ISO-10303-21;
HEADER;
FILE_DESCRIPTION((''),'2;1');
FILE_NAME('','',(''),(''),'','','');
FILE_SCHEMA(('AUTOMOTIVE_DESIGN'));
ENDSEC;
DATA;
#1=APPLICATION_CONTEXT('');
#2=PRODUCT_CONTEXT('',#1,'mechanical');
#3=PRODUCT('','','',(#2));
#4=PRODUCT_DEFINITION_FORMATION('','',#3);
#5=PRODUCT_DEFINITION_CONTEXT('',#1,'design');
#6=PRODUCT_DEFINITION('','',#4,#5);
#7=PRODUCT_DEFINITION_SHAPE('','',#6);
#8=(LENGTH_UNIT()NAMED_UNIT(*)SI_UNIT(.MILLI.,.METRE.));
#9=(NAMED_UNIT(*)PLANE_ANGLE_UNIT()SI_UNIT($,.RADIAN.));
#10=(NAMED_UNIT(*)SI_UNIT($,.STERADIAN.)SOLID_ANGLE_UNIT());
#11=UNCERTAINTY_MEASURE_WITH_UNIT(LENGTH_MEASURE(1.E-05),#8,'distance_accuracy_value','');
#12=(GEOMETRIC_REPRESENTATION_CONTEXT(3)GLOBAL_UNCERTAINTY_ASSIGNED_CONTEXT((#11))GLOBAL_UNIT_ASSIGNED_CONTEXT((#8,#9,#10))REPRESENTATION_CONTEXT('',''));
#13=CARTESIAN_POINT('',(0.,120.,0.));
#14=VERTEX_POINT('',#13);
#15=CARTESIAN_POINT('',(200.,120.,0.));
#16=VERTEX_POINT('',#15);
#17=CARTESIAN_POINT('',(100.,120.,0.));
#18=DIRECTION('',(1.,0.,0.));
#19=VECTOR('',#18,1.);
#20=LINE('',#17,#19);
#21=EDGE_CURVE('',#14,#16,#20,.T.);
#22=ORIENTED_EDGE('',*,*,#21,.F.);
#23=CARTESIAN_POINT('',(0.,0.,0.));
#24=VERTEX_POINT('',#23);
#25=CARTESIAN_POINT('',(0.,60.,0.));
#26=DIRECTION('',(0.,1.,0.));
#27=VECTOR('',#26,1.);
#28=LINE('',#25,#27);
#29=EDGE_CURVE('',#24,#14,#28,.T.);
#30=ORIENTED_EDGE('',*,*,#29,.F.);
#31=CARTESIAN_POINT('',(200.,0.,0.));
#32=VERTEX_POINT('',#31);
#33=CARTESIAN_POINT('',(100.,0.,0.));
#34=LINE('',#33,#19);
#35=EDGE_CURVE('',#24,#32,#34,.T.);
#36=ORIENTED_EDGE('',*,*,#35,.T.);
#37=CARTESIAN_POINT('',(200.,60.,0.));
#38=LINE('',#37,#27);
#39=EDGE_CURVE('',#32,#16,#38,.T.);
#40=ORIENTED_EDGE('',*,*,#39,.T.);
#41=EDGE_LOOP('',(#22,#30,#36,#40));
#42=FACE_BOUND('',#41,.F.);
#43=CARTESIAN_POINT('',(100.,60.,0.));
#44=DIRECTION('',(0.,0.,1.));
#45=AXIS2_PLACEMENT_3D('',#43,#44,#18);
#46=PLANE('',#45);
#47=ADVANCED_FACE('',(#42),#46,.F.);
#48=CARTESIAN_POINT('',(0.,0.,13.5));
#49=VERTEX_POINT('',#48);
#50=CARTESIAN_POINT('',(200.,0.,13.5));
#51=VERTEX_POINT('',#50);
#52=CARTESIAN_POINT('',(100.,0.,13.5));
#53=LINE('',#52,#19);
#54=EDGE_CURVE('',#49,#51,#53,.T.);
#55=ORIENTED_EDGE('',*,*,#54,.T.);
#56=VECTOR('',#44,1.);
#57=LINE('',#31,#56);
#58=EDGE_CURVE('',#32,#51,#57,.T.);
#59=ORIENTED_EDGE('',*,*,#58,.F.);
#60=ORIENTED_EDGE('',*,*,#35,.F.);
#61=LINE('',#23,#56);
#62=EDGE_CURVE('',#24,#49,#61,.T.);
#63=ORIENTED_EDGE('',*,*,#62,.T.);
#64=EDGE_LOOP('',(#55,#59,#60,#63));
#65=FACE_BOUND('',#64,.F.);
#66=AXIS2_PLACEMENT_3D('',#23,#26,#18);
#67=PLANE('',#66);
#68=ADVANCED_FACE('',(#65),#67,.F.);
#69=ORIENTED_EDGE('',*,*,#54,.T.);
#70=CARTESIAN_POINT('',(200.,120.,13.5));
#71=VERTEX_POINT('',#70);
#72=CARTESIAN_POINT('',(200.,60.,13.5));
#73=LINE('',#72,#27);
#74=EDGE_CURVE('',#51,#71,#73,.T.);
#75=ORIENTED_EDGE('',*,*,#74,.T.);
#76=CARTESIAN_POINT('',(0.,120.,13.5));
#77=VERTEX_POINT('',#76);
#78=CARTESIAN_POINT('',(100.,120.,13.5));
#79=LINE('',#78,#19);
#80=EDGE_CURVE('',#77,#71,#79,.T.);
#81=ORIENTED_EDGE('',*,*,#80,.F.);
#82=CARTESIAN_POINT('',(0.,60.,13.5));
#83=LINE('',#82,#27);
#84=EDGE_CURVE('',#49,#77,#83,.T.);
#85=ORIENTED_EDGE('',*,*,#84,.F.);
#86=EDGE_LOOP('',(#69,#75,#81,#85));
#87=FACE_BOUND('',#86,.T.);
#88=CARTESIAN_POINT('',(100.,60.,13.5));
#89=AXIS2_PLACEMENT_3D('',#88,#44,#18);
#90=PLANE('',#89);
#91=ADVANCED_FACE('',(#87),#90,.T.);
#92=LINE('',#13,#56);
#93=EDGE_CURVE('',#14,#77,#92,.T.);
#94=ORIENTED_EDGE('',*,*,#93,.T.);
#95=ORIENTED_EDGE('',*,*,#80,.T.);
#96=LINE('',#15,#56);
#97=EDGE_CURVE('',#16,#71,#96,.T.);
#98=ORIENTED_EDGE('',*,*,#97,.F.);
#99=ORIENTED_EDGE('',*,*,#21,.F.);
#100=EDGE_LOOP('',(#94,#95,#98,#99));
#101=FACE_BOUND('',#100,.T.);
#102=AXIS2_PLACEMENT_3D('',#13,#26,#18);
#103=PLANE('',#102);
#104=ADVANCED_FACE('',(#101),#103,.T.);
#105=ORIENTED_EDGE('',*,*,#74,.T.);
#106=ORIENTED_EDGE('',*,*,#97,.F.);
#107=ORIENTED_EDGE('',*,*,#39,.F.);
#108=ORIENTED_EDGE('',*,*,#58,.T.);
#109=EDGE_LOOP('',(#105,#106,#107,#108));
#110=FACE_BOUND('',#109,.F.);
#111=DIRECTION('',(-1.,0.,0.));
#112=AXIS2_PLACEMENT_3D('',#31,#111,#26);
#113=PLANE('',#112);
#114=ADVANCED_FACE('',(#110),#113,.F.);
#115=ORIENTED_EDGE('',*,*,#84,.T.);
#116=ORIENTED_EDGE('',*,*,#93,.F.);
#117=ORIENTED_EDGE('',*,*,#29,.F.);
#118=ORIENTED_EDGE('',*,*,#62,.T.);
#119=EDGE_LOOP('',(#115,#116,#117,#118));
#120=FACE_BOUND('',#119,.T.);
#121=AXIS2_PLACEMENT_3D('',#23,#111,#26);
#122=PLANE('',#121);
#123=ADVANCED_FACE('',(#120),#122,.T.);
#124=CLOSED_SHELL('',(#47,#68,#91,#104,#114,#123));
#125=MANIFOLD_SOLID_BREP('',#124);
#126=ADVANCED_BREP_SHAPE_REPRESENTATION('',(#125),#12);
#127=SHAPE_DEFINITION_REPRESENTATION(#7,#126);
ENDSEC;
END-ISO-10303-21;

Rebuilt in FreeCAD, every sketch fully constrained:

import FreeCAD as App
import Part
import Sketcher
from FreeCAD import Vector
Q = App.Units.Quantity


def add_polygon(sketch, points):
    """Adds a closed chain of lines whose ends are joined by coincident constraints."""
    first, n = sketch.GeometryCount, len(points)
    for a, b in zip(points, points[1:] + points[:1]):
        sketch.addGeometry(Part.LineSegment(App.Vector(*a, 0), App.Vector(*b, 0)), False)
    for i in range(n):
        sketch.addConstraint(Sketcher.Constraint("Coincident", first + i, 2, first + (i + 1) % n, 1))

doc = App.newDocument("Part")
body = doc.addObject("PartDesign::Body", "Body")

# Sketch on XY plane
sketch1 = body.newObject("Sketcher::SketchObject", "Sketch")
sketch1.AttachmentSupport = (doc.getObject("XY_Plane"), [""])
sketch1.MapMode = "FlatFace"
add_polygon(sketch1, [(0, 120), (0, 0), (200, 0), (200, 120)])  # lines 0-3
sketch1.addConstraint([
    Sketcher.Constraint("Vertical", 0),
    Sketcher.Constraint("Horizontal", 1),
    Sketcher.Constraint("Vertical", 2),
    Sketcher.Constraint("Horizontal", 3),
    Sketcher.Constraint("Coincident", 0, 2, -1, 1),
    Sketcher.Constraint("DistanceX", 1, 1, 1, 2, Q("200 mm")),
    Sketcher.Constraint("DistanceY", 0, 2, 0, 1, Q("120 mm")),
])
pad1 = body.newObject("PartDesign::Pad", "Pad")
pad1.Profile = sketch1
pad1.Length = 13.5

doc.recompute()
